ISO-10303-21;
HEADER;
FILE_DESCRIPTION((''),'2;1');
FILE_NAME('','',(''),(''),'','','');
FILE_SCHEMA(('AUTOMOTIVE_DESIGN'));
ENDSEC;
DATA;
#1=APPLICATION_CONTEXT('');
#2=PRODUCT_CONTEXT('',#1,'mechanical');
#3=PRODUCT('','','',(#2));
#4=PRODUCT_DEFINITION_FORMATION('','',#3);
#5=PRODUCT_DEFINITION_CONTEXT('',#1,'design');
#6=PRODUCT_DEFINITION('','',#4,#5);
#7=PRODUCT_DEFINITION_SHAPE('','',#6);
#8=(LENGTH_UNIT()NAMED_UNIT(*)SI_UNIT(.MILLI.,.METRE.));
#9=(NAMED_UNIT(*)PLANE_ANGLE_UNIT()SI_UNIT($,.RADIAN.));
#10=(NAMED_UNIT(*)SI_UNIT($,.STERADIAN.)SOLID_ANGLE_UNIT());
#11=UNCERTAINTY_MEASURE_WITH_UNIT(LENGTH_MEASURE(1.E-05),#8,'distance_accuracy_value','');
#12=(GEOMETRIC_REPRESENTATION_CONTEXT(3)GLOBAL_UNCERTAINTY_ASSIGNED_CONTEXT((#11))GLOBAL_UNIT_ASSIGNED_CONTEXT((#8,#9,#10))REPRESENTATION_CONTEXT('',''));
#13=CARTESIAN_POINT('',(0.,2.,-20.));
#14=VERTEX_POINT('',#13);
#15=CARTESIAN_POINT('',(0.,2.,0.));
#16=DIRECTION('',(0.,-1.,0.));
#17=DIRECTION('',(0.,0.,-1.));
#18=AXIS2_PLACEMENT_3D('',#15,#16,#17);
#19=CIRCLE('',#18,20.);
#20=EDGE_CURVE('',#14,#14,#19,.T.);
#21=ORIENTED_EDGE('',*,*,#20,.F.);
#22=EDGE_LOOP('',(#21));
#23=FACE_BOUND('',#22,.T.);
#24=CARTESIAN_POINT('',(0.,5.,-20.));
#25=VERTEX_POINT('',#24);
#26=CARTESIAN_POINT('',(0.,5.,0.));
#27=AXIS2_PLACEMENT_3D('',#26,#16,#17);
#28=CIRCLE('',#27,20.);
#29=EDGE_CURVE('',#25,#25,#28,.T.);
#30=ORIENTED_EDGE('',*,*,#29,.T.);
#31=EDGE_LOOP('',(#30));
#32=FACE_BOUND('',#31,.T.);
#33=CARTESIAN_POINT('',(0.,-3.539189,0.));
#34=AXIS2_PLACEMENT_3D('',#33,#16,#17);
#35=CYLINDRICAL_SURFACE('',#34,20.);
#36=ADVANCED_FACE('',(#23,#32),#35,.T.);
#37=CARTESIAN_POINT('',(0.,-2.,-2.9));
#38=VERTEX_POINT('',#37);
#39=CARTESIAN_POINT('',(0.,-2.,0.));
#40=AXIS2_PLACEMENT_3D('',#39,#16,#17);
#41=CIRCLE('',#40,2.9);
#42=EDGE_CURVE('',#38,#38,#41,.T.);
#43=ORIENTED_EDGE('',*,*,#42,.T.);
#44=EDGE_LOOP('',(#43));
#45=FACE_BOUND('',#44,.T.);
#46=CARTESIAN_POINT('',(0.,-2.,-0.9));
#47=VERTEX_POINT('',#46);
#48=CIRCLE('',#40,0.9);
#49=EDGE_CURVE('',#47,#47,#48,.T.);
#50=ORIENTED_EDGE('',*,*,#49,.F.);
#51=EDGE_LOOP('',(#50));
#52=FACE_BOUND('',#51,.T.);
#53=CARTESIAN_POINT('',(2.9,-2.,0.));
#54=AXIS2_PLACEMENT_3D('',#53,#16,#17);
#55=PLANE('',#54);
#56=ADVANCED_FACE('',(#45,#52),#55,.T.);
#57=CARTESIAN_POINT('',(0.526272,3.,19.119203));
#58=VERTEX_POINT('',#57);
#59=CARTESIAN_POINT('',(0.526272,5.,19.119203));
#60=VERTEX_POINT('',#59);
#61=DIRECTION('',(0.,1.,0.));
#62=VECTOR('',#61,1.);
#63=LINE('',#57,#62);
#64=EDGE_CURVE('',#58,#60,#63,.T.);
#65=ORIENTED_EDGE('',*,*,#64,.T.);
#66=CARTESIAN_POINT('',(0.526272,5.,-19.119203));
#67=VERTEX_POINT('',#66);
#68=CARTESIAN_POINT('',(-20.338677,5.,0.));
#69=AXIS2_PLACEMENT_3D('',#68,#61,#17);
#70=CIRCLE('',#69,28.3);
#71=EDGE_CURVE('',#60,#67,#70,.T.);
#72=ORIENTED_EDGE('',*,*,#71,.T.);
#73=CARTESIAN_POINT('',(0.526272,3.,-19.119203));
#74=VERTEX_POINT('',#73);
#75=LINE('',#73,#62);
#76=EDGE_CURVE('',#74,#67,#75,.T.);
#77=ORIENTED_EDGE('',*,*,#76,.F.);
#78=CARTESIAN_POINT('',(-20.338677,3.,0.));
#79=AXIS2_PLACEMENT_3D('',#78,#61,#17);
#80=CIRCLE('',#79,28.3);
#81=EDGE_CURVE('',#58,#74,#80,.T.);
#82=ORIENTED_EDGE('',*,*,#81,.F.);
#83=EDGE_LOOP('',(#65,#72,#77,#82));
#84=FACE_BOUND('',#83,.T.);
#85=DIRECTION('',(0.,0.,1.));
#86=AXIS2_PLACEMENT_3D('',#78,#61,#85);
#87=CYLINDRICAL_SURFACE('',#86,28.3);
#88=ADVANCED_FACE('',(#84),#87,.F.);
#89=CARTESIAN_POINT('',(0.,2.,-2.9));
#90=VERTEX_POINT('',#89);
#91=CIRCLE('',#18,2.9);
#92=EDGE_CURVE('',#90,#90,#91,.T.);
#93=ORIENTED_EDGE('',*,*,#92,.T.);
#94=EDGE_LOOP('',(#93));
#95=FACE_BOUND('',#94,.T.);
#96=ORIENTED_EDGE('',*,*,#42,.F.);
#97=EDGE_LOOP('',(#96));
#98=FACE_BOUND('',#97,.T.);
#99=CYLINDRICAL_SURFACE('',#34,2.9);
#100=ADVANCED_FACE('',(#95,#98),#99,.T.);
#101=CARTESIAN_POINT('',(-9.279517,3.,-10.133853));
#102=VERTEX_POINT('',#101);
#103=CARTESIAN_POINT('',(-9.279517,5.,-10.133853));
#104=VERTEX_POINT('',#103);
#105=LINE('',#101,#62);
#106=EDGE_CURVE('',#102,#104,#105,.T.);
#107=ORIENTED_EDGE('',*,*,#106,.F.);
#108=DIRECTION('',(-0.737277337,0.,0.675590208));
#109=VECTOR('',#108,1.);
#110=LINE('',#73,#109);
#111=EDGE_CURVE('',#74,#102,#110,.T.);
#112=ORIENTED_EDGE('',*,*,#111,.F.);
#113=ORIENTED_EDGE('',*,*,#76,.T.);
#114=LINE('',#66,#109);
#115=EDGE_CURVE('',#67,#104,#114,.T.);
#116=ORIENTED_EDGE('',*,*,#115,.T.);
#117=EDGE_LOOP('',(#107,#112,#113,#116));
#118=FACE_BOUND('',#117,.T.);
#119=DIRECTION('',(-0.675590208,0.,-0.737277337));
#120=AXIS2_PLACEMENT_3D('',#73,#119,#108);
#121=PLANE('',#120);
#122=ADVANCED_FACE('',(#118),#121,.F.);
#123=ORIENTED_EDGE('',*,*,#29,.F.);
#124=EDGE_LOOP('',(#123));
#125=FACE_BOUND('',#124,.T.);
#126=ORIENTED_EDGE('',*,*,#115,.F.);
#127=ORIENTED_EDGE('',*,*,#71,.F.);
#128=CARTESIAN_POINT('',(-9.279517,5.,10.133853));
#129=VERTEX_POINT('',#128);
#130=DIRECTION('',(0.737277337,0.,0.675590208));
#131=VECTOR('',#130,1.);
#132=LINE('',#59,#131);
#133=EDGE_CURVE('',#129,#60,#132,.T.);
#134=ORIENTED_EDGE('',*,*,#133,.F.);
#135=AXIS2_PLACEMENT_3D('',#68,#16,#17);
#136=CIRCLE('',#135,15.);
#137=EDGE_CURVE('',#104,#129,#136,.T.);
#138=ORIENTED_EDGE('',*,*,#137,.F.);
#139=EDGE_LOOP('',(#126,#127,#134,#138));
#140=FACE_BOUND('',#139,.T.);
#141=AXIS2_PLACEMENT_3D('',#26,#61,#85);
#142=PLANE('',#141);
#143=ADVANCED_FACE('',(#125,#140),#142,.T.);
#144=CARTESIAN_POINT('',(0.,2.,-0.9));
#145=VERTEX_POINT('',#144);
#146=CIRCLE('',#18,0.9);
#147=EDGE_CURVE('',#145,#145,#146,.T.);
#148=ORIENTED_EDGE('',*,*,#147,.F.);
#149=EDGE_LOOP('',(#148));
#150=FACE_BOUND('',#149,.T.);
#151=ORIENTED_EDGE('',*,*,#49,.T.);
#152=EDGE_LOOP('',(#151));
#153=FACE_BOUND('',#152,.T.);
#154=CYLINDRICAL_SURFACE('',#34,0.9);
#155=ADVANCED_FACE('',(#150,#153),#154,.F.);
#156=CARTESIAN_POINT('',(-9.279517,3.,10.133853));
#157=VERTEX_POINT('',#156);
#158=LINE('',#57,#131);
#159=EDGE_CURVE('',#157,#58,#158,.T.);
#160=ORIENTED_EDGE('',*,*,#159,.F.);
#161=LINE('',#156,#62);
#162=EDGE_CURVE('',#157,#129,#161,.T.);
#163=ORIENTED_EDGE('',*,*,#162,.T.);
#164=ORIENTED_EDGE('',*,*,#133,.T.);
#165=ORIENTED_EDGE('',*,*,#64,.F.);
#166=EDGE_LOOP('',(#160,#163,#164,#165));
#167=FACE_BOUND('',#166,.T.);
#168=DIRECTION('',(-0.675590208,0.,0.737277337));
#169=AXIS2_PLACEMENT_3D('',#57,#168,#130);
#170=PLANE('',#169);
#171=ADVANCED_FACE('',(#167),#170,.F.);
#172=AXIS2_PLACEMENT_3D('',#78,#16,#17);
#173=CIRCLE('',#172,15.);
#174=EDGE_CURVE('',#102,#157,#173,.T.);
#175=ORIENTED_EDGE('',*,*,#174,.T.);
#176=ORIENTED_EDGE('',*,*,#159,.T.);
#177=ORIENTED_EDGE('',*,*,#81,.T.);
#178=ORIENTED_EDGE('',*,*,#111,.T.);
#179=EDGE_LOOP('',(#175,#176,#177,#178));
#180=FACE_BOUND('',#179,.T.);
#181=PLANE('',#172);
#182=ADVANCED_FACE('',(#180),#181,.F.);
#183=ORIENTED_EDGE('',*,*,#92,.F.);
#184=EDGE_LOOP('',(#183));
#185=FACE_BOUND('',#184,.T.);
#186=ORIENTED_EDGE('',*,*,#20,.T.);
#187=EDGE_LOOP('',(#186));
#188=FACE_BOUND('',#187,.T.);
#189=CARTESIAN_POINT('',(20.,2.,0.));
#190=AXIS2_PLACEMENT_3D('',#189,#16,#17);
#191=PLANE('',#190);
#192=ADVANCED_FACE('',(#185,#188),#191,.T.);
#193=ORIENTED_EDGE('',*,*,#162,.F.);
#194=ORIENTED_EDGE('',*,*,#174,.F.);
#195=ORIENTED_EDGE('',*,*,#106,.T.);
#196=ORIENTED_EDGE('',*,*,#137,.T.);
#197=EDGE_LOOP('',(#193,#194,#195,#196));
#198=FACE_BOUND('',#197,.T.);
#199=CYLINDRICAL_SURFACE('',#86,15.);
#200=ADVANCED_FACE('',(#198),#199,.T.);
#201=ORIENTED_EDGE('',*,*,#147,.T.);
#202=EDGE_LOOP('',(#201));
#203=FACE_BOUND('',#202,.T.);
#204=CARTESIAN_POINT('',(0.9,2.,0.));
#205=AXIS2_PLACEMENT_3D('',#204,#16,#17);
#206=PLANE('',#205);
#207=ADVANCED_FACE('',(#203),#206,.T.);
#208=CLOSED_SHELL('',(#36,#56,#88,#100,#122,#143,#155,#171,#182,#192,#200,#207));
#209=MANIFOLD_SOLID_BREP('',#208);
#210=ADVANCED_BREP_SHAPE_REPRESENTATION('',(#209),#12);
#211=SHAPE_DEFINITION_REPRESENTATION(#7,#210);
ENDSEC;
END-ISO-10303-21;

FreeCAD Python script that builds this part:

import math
import FreeCAD as App
import Part
import Sketcher

V = App.Vector
Q = App.Units.Quantity


def add_polygon(sketch, points):
    """Adds a closed chain of lines whose ends are joined by coincident constraints."""
    first, n = sketch.GeometryCount, len(points)
    for a, b in zip(points, points[1:] + points[:1]):
        sketch.addGeometry(Part.LineSegment(App.Vector(*a, 0), App.Vector(*b, 0)), False)
    for i in range(n):
        sketch.addConstraint(Sketcher.Constraint("Coincident", first + i, 2, first + (i + 1) % n, 1))

doc = App.newDocument("Part")
body = doc.addObject("PartDesign::Body", "Body")

# Sketch on XY plane
sketch1 = body.newObject("Sketcher::SketchObject", "Sketch")
sketch1.AttachmentSupport = (doc.getObject("XY_Plane"), [""])
sketch1.MapMode = "FlatFace"
add_polygon(sketch1, [(0.9, 2), (0.9, -2), (2.9, -2), (2.9, 2), (20, 2), (20, 5), (0, 5), (0, 2)])  # lines 0-7
sketch1.addConstraint([
    Sketcher.Constraint("Vertical", 0),
    Sketcher.Constraint("Horizontal", 1),
    Sketcher.Constraint("Vertical", 2),
    Sketcher.Constraint("Horizontal", 3),
    Sketcher.Constraint("Vertical", 4),
    Sketcher.Constraint("Horizontal", 5),
    Sketcher.Constraint("Vertical", 6),
    Sketcher.Constraint("Horizontal", 7),
    Sketcher.Constraint("PointOnObject", 5, 2, -2),
    Sketcher.Constraint("Horizontal", 3, 2, 6, 2),
    Sketcher.Constraint("DistanceX", 1, 1, 1, 2, Q("2 mm")),
    Sketcher.Constraint("DistanceX", 5, 2, 5, 1, Q("20 mm")),
    Sketcher.Constraint("DistanceY", 0, 2, 0, 1, Q("4 mm")),
    Sketcher.Constraint("DistanceY", 4, 1, 4, 2, Q("3 mm")),
    Sketcher.Constraint("DistanceX", 3, 1, 3, 2, Q("17.1 mm")),
    Sketcher.Constraint("DistanceY", 0, 2, -1, 1, Q("2 mm")),
])
revolution = body.newObject("PartDesign::Revolution", "Revolution")
revolution.Profile = sketch1
revolution.ReferenceAxis = (sketch1, ["V_Axis"])
revolution.Angle = 360

# Sketch on XZ plane
sketch2 = body.newObject("Sketcher::SketchObject", "Sketch001")
sketch2.AttachmentSupport = (doc.getObject("XZ_Plane"), [""])
sketch2.MapMode = "FlatFace"
sketch2.AttachmentOffset = App.Placement(V(0, 0, -5), App.Rotation())
sketch2.addGeometry([
    Part.LineSegment(V(1, -19, 0), V(-9, -10, 0)),
    Part.ArcOfCircle(Part.Circle(V(-20, 0, 0), V(0, 0, 1), 15), math.radians(-42), math.radians(42)),
    Part.LineSegment(V(-9, 10, 0), V(1, 19, 0)),
    Part.ArcOfCircle(Part.Circle(V(-20, 0, 0), V(0, 0, 1), 28), math.radians(-42), math.radians(42)),
], False)
sketch2.addConstraint([
    Sketcher.Constraint("Coincident", 0, 2, 1, 1),
    Sketcher.Constraint("Coincident", 1, 2, 2, 1),
    Sketcher.Constraint("Coincident", 2, 2, 3, 2),
    Sketcher.Constraint("Coincident", 3, 1, 0, 1),
    Sketcher.Constraint("Coincident", 3, 3, 1, 3),
    Sketcher.Constraint("Symmetric", 0, 2, 1, 2, -1),
    Sketcher.Constraint("Vertical", 2, 2, 3, 1),
    Sketcher.Constraint("Radius", 1, Q("15 mm")),
    Sketcher.Constraint("Radius", 3, Q("28.3 mm")),
    Sketcher.Constraint("Angle", 0, Q("137.5 deg")),
    Sketcher.Constraint("DistanceX", 1, 3, 0, 2, Q("11.05916 mm")),
    Sketcher.Constraint("DistanceX", 1, 3, -1, 1, Q("20.338677 mm")),
])
pocket1 = body.newObject("PartDesign::Pocket", "Pocket")
pocket1.Profile = sketch2
pocket1.Length = 2
pocket1.Reversed = True

doc.recompute()
